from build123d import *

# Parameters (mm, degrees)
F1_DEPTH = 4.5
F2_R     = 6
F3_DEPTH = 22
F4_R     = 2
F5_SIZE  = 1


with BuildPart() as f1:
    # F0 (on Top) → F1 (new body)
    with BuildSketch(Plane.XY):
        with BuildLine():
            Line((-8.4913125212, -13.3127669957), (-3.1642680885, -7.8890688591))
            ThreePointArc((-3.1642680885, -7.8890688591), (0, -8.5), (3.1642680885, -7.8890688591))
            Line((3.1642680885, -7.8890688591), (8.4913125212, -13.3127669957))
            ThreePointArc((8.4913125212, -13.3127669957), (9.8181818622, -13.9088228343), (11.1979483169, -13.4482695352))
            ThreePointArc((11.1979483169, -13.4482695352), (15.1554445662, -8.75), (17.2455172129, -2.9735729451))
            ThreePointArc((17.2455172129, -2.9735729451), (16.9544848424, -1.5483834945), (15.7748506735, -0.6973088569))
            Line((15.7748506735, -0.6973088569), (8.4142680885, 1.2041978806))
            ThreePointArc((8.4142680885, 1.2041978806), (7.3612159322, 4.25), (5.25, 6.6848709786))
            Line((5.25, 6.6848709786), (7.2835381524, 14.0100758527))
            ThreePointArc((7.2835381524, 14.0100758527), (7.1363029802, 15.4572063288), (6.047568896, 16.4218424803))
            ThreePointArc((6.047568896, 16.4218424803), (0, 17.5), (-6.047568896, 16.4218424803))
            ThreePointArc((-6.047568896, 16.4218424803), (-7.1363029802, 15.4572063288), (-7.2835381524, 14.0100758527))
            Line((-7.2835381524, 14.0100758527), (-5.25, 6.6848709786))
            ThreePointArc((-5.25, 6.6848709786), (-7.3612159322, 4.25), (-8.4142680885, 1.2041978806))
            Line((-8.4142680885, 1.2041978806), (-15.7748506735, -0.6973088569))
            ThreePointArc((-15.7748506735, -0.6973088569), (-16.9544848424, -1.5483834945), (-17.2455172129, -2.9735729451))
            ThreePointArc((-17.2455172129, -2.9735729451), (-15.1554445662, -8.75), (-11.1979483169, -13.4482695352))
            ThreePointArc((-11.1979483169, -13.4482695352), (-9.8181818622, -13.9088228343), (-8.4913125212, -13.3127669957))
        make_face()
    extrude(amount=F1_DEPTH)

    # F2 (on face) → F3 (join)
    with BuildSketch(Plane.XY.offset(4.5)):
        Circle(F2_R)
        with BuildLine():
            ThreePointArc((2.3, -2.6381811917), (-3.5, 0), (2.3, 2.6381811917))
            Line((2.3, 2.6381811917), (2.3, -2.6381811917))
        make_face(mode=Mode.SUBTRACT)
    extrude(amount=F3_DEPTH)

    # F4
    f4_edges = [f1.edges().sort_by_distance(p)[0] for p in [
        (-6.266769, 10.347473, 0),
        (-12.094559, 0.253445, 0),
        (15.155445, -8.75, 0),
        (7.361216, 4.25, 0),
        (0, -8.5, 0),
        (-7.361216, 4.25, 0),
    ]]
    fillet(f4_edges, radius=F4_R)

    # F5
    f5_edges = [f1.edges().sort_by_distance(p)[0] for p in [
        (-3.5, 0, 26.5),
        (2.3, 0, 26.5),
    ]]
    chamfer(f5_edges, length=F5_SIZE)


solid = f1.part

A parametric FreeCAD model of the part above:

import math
import FreeCAD as App
import Part
import Sketcher

V = App.Vector


def edges_at(feature, points):
    """Names of the edges that pass closest to the given points."""
    edges = feature.Shape.Edges
    near = lambda p: min(range(len(edges)), key=lambda i: edges[i].distToShape(Part.Vertex(*p))[0])
    return sorted({f"Edge{near(p) + 1}" for p in points})

doc = App.newDocument("Part")
body = doc.addObject("PartDesign::Body", "Body")

sketch1 = doc.addObject("Sketcher::SketchObject", "Sketch")
body.addObject(sketch1)
sketch1.AttachmentSupport = (doc.XY_Plane, [""])
sketch1.MapMode = "FlatFace"
sketch1.addGeometry(Part.LineSegment(V(-8.5, -13.3, 0), V(-3.2, -7.9, 0)), False)
sketch1.addGeometry(Part.ArcOfCircle(Part.Circle(V(0, 0, 0), V(0, 0, 1), 8.5), math.radians(-112), math.radians(-68)), False)
sketch1.addGeometry(Part.LineSegment(V(3.2, -7.9, 0), V(8.5, -13.3, 0)), False)
sketch1.addGeometry(Part.ArcOfCircle(Part.Circle(V(9.9, -11.9, 0), V(0, 0, 1), 2), math.radians(-136), math.radians(-50)), False)
sketch1.addGeometry(Part.ArcOfCircle(Part.Circle(V(0, 0, 0), V(0, 0, 1), 17.5), math.radians(-50), math.radians(-10)), False)
sketch1.addGeometry(Part.ArcOfCircle(Part.Circle(V(15.3, -2.6, 0), V(0, 0, 1), 2), math.radians(-10), math.radians(76)), False)
sketch1.addGeometry(Part.LineSegment(V(15.8, -0.7, 0), V(8.4, 1.2, 0)), False)
sketch1.addGeometry(Part.ArcOfCircle(Part.Circle(V(0, 0, 0), V(0, 0, 1), 8.5), math.radians(8), math.radians(52)), False)
sketch1.addGeometry(Part.LineSegment(V(5.2, 6.7, 0), V(7.3, 14, 0)), False)
sketch1.addGeometry(Part.ArcOfCircle(Part.Circle(V(5.4, 14.5, 0), V(0, 0, 1), 2), math.radians(-16), math.radians(70)), False)
sketch1.addGeometry(Part.ArcOfCircle(Part.Circle(V(0, 0, 0), V(0, 0, 1), 17.5), math.radians(70), math.radians(110)), False)
sketch1.addGeometry(Part.ArcOfCircle(Part.Circle(V(-5.4, 14.5, 0), V(0, 0, 1), 2), math.radians(110), math.radians(196)), False)
sketch1.addGeometry(Part.LineSegment(V(-7.3, 14, 0), V(-5.2, 6.7, 0)), False)
sketch1.addGeometry(Part.ArcOfCircle(Part.Circle(V(0, 0, 0), V(0, 0, 1), 8.5), math.radians(128), math.radians(172)), False)
sketch1.addGeometry(Part.LineSegment(V(-8.4, 1.2, 0), V(-15.8, -0.7, 0)), False)
sketch1.addGeometry(Part.ArcOfCircle(Part.Circle(V(-15.3, -2.6, 0), V(0, 0, 1), 2), math.radians(104), math.radians(190)), False)
sketch1.addGeometry(Part.ArcOfCircle(Part.Circle(V(0, 0, 0), V(0, 0, 1), 17.5), math.radians(-170), math.radians(-130)), False)
sketch1.addGeometry(Part.ArcOfCircle(Part.Circle(V(-9.9, -11.9, 0), V(0, 0, 1), 2), math.radians(-130), math.radians(-44)), False)
sketch1.addConstraint(Sketcher.Constraint("Coincident", 0, 2, 1, 1))
sketch1.addConstraint(Sketcher.Constraint("Coincident", 1, 2, 2, 1))
sketch1.addConstraint(Sketcher.Constraint("Tangent", 2, 2, 3, 1))
sketch1.addConstraint(Sketcher.Constraint("Tangent", 3, 2, 4, 1))
sketch1.addConstraint(Sketcher.Constraint("Tangent", 4, 2, 5, 1))
sketch1.addConstraint(Sketcher.Constraint("Tangent", 5, 2, 6, 1))
sketch1.addConstraint(Sketcher.Constraint("Coincident", 6, 2, 7, 1))
sketch1.addConstraint(Sketcher.Constraint("Coincident", 7, 2, 8, 1))
sketch1.addConstraint(Sketcher.Constraint("Tangent", 8, 2, 9, 1))
sketch1.addConstraint(Sketcher.Constraint("Tangent", 9, 2, 10, 1))
sketch1.addConstraint(Sketcher.Constraint("Tangent", 10, 2, 11, 1))
sketch1.addConstraint(Sketcher.Constraint("Tangent", 11, 2, 12, 1))
sketch1.addConstraint(Sketcher.Constraint("Coincident", 12, 2, 13, 1))
sketch1.addConstraint(Sketcher.Constraint("Coincident", 13, 2, 14, 1))
sketch1.addConstraint(Sketcher.Constraint("Tangent", 14, 2, 15, 1))
sketch1.addConstraint(Sketcher.Constraint("Tangent", 15, 2, 16, 1))
sketch1.addConstraint(Sketcher.Constraint("Tangent", 16, 2, 17, 1))
sketch1.addConstraint(Sketcher.Constraint("Tangent", 17, 2, 0, 1))
sketch1.addConstraint(Sketcher.Constraint("Coincident", 1, 3, -1, 1))
sketch1.addConstraint(Sketcher.Constraint("Coincident", 4, 3, -1, 1))
sketch1.addConstraint(Sketcher.Constraint("Coincident", 7, 3, -1, 1))
sketch1.addConstraint(Sketcher.Constraint("Coincident", 10, 3, -1, 1))
sketch1.addConstraint(Sketcher.Constraint("Coincident", 13, 3, -1, 1))
sketch1.addConstraint(Sketcher.Constraint("Coincident", 16, 3, -1, 1))
sketch1.addConstraint(Sketcher.Constraint("Equal", 3, 5))
sketch1.addConstraint(Sketcher.Constraint("Equal", 1, 7))
sketch1.addConstraint(Sketcher.Constraint("Equal", 5, 9))
sketch1.addConstraint(Sketcher.Constraint("Equal", 4, 10))
sketch1.addConstraint(Sketcher.Constraint("Equal", 9, 11))
sketch1.addConstraint(Sketcher.Constraint("Equal", 7, 13))
sketch1.addConstraint(Sketcher.Constraint("Equal", 11, 15))
sketch1.addConstraint(Sketcher.Constraint("Equal", 10, 16))
sketch1.addConstraint(Sketcher.Constraint("Equal", 15, 17))
sketch1.addConstraint(Sketcher.Constraint("Symmetric", 8, 2, 11, 2, -2))
sketch1.addConstraint(Sketcher.Constraint("Symmetric", 5, 2, 14, 2, -2))
sketch1.addConstraint(Sketcher.Constraint("Symmetric", 2, 2, 17, 2, -2))
sketch1.addConstraint(Sketcher.Constraint("Equal", 2, 6))
sketch1.addConstraint(Sketcher.Constraint("Equal", 6, 8))
sketch1.addConstraint(Sketcher.Constraint("Radius", 3, 2.0))
sketch1.addConstraint(Sketcher.Constraint("Radius", 1, 8.5))
sketch1.addConstraint(Sketcher.Constraint("Radius", 4, 17.5))
sketch1.addConstraint(Sketcher.Constraint("DistanceX", -1, 1, 7, 2, 5.25))
sketch1.addConstraint(Sketcher.Constraint("DistanceX", -1, 1, 5, 3, 15.274601))
sketch1.addConstraint(Sketcher.Constraint("DistanceY", 2, 2, 1, 2, 5.423698))
sketch1.addConstraint(Sketcher.Constraint("DistanceY", 3, 2, 1, 2, 5.559201))
pad1 = doc.addObject("PartDesign::Pad", "Pad")
body.addObject(pad1)
pad1.Profile = sketch1
pad1.Length = 4.5

sketch2 = doc.addObject("Sketcher::SketchObject", "Sketch001")
body.addObject(sketch2)
sketch2.AttachmentSupport = (doc.XY_Plane, [""])
sketch2.MapMode = "FlatFace"
sketch2.AttachmentOffset = App.Placement(V(0, 0, 4.5), App.Rotation())
sketch2.addGeometry(Part.Circle(V(0, 0, 0), V(0, 0, 1), 6), False)
sketch2.addGeometry(Part.LineSegment(V(2.3, 2.6, 0), V(2.3, -2.6, 0)), False)
sketch2.addGeometry(Part.ArcOfCircle(Part.Circle(V(0, 0, 0), V(0, 0, 1), 3.5), math.radians(49), math.radians(311)), False)
sketch2.addConstraint(Sketcher.Constraint("Coincident", 1, 1, 2, 1))
sketch2.addConstraint(Sketcher.Constraint("Coincident", 2, 2, 1, 2))
sketch2.addConstraint(Sketcher.Constraint("Vertical", 1))
sketch2.addConstraint(Sketcher.Constraint("Coincident", 0, 3, -1, 1))
sketch2.addConstraint(Sketcher.Constraint("Coincident", 2, 3, -1, 1))
sketch2.addConstraint(Sketcher.Constraint("Diameter", 0, 12.0))
sketch2.addConstraint(Sketcher.Constraint("Radius", 2, 3.5))
sketch2.addConstraint(Sketcher.Constraint("DistanceX", -1, 1, 1, 1, 2.3))
pad2 = doc.addObject("PartDesign::Pad", "Pad001")
body.addObject(pad2)
pad2.Profile = sketch2
pad2.Length = 22
doc.recompute()

fillet = doc.addObject("PartDesign::Fillet", "Fillet")
body.addObject(fillet)
fillet.Base = (pad2, edges_at(pad2, [
    (-6.267, 10.347, 0),
    (-12.095, 0.253, 0),
    (15.155, -8.75, 0),
    (7.361, 4.25, 0),
    (0, -8.5, 0),
    (-7.361, 4.25, 0),
]))
fillet.Radius = 2
doc.recompute()

chamfer = doc.addObject("PartDesign::Chamfer", "Chamfer")
body.addObject(chamfer)
chamfer.Base = (fillet, edges_at(fillet, [(-3.5, 0, 26.5), (2.3, 0, 26.5)]))
chamfer.Size = 1

doc.recompute()
